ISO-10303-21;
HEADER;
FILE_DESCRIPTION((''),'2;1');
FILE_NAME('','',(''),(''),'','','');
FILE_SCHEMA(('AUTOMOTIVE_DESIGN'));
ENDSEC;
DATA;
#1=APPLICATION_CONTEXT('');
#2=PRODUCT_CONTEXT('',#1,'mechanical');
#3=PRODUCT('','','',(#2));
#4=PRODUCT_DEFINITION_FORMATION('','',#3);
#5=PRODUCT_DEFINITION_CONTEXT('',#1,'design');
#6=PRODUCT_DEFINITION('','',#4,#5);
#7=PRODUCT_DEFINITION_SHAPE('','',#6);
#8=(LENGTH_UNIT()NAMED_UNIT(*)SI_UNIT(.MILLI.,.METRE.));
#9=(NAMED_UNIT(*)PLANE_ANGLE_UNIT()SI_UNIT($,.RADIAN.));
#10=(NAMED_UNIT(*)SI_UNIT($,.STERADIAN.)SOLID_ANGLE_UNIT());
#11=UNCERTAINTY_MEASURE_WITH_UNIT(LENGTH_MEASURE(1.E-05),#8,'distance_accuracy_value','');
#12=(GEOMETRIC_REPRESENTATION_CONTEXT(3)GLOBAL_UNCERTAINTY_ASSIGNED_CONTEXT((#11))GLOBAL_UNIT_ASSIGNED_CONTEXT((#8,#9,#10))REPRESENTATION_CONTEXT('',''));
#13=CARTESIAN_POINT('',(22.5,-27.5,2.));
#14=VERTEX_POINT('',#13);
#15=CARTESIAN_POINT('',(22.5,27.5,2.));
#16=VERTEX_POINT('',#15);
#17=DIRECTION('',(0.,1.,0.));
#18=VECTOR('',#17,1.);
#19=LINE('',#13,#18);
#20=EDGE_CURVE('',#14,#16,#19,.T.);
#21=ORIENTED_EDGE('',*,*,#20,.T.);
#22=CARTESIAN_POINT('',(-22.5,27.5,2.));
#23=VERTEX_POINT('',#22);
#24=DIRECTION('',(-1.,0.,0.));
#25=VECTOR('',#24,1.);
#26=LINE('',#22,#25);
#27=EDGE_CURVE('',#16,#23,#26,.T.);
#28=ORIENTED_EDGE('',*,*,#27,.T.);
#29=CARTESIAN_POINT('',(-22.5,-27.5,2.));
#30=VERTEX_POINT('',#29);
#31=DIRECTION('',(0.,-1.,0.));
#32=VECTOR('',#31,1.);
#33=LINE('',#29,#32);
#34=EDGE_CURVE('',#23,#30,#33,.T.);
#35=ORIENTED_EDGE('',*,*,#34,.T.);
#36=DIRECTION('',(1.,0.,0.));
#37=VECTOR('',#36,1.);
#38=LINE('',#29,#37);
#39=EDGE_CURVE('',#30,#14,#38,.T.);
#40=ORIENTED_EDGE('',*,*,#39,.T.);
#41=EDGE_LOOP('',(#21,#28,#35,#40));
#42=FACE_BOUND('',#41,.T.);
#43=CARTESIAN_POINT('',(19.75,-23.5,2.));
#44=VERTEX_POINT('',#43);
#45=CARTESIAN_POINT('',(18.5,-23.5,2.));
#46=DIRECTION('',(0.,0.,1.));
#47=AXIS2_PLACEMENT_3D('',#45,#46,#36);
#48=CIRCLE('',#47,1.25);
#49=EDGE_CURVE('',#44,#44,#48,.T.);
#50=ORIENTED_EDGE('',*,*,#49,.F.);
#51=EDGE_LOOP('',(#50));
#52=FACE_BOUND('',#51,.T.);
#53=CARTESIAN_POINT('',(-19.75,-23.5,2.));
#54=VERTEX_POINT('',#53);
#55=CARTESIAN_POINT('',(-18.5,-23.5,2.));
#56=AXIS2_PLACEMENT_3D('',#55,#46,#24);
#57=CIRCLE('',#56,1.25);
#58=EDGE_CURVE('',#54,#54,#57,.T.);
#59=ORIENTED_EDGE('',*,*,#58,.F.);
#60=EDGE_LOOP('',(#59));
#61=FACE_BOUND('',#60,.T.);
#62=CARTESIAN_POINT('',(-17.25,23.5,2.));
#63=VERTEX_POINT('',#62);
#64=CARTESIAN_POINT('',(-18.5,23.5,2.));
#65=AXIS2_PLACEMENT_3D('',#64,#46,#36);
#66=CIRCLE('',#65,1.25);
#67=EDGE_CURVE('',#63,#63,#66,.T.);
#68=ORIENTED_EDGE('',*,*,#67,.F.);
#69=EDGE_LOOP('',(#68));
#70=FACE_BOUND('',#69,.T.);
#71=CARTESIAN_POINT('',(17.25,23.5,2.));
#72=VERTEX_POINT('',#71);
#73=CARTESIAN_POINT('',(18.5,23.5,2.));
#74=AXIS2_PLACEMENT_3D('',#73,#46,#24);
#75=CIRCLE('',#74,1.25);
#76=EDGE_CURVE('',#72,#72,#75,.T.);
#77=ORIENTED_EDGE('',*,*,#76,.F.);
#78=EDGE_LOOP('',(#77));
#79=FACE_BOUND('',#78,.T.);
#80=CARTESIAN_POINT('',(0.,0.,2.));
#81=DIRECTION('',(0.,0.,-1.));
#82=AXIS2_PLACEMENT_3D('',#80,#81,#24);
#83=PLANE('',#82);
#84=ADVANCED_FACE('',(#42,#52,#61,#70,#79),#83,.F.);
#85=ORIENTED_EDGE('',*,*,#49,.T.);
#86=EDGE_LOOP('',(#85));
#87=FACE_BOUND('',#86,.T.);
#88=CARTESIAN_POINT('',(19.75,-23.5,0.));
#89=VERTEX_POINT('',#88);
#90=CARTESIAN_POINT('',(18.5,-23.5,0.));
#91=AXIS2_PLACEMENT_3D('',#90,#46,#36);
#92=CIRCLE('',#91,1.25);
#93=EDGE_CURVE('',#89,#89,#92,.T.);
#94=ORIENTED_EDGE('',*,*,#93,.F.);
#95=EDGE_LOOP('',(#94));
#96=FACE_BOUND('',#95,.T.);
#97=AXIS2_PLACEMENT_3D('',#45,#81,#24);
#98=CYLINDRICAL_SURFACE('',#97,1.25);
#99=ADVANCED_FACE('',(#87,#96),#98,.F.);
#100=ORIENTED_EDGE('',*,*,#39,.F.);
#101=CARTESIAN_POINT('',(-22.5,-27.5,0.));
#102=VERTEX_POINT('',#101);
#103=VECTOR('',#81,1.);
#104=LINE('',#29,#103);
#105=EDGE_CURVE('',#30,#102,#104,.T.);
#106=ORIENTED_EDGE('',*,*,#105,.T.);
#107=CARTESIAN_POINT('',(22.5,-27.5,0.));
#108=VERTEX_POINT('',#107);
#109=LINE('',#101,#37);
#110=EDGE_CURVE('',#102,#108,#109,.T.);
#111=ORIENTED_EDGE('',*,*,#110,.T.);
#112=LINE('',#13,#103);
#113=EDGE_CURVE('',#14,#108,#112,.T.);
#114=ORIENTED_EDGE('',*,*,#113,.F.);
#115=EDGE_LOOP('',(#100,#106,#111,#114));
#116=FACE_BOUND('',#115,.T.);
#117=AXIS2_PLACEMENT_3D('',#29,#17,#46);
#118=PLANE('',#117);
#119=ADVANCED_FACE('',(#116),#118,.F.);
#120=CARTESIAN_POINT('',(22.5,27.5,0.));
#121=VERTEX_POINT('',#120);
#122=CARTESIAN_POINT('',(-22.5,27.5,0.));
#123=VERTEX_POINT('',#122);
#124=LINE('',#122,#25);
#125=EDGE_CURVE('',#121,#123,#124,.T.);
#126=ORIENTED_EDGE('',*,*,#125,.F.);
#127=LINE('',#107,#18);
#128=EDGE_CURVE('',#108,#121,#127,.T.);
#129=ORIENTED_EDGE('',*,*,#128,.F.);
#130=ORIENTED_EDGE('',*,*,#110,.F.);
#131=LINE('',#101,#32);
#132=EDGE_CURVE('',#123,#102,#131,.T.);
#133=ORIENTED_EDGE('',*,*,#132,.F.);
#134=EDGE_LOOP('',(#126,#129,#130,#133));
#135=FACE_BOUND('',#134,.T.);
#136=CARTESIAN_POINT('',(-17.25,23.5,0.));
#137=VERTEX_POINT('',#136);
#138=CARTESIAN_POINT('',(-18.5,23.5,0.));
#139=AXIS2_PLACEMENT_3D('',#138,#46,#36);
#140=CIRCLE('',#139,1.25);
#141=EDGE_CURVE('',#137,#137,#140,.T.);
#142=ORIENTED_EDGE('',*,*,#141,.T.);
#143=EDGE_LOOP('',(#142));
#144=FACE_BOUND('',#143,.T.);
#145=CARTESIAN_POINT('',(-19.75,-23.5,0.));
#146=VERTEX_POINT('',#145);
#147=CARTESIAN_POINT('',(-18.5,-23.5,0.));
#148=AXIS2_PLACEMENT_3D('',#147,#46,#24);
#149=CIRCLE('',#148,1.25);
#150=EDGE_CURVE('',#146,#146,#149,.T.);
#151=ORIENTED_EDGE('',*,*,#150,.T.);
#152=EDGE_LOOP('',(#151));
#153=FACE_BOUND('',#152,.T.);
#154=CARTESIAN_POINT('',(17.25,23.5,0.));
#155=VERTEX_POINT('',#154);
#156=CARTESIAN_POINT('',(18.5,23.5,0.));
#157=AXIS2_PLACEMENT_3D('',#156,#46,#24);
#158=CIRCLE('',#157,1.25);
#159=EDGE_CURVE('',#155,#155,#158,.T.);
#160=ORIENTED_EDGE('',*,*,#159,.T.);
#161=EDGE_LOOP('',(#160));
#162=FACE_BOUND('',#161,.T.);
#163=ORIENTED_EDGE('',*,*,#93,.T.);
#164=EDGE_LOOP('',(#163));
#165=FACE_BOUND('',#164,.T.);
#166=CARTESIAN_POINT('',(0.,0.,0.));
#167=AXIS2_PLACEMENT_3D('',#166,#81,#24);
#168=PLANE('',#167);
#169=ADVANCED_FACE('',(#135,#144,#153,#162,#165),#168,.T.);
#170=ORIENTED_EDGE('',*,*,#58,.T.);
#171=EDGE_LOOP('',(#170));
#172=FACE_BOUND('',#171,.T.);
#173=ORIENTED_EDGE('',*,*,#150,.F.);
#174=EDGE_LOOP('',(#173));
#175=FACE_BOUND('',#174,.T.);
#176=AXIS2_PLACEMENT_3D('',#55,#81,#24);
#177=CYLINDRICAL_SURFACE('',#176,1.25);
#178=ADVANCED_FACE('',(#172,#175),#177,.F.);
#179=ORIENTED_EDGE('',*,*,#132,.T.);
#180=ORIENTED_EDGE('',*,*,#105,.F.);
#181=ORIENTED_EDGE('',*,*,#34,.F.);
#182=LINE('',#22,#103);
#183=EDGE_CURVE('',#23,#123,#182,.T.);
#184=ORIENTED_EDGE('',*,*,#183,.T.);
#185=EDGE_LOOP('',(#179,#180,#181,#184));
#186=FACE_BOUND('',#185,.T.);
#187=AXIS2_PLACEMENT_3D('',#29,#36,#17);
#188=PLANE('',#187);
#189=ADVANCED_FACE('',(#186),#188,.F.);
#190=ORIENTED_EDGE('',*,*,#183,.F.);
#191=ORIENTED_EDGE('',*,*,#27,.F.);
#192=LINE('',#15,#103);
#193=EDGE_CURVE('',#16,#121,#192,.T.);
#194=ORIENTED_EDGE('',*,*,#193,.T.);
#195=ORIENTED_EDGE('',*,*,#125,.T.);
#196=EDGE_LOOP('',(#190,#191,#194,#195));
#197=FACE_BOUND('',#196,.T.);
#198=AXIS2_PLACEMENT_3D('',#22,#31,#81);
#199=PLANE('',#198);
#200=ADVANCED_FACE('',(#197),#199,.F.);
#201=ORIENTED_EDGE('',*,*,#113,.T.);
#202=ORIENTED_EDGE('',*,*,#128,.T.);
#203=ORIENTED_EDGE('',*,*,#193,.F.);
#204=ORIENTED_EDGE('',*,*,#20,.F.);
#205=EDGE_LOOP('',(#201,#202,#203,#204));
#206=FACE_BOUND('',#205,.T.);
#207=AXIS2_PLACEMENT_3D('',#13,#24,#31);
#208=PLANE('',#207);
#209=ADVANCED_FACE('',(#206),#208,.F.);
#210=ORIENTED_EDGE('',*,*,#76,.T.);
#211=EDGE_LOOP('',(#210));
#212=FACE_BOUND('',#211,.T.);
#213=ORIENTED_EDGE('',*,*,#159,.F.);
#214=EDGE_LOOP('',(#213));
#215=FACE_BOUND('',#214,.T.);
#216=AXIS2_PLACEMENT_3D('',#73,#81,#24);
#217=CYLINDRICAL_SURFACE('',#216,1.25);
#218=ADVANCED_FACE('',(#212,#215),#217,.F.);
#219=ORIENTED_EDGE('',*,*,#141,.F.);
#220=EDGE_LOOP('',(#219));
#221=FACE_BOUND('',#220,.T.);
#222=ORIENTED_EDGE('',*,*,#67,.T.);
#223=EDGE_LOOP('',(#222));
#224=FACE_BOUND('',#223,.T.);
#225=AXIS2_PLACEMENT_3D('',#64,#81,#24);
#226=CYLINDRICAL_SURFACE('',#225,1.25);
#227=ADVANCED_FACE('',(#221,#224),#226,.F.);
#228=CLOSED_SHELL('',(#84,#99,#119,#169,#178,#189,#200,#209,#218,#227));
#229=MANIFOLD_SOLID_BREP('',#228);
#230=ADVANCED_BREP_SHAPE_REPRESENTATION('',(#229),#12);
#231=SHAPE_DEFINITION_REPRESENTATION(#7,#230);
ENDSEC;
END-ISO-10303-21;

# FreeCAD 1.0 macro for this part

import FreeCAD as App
import Part
import Sketcher

V = App.Vector


def add_polygon(sketch, points):
    """Adds a closed chain of lines whose ends are joined by coincident constraints."""
    first, n = sketch.GeometryCount, len(points)
    for a, b in zip(points, points[1:] + points[:1]):
        sketch.addGeometry(Part.LineSegment(App.Vector(*a, 0), App.Vector(*b, 0)), False)
    for i in range(n):
        sketch.addConstraint(Sketcher.Constraint("Coincident", first + i, 2, first + (i + 1) % n, 1))

doc = App.newDocument("Part")
params = doc.addObject("Spreadsheet::Sheet", "Params")
for row, (alias, value) in enumerate([
    ("sketch1_diameter", "2.5 mm"),
    ("sketch1_width", "45 mm"),
    ("sketch1_height", "55 mm"),
    ("pad1_length", "2 mm"),
], start=1):
    params.set(f"A{row}", alias)
    params.set(f"B{row}", "=" + value)
    params.setAlias(f"B{row}", alias)

body = doc.addObject("PartDesign::Body", "Body")

# Sketch on XY plane
sketch1 = body.newObject("Sketcher::SketchObject", "Sketch")
sketch1.AttachmentSupport = (doc.getObject("XY_Plane"), [""])
sketch1.MapMode = "FlatFace"
add_polygon(sketch1, [(-22.5, 27.5), (-22.5, -27.5), (22.5, -27.5), (22.5, 27.5)])  # lines 0-3
sketch1.addGeometry(Part.Circle(V(-18.5, -23.5, 0), V(0, 0, 1), 1.2), False)  # 4
sketch1.addGeometry(Part.Circle(V(18.5, -23.5, 0), V(0, 0, 1), 1.2), False)  # 5
sketch1.addGeometry(Part.Circle(V(-18.5, 23.5, 0), V(0, 0, 1), 1.2), False)  # 6
sketch1.addGeometry(Part.Circle(V(18.5, 23.5, 0), V(0, 0, 1), 1.2), False)  # 7
sketch1.addConstraint([
    Sketcher.Constraint("Vertical", 0),
    Sketcher.Constraint("Horizontal", 1),
    Sketcher.Constraint("Vertical", 2),
    Sketcher.Constraint("Horizontal", 3),
    Sketcher.Constraint("Equal", 4, 5),
    Sketcher.Constraint("Equal", 5, 6),
    Sketcher.Constraint("Equal", 6, 7),
    Sketcher.Constraint("Symmetric", 5, 3, 6, 3, -1, 1),
    Sketcher.Constraint("Symmetric", 4, 3, 7, 3, -1, 1),
    Sketcher.Constraint("Symmetric", 0, 2, 2, 2, -1, 1),
    Sketcher.Constraint("Symmetric", 4, 3, 5, 3, -2),
    Sketcher.Constraint("Diameter", 4, 2.5),
    Sketcher.Constraint("DistanceX", 1, 1, 1, 2, 45.0),
    Sketcher.Constraint("DistanceY", 0, 2, 0, 1, 55.0),
    Sketcher.Constraint("DistanceX", 4, 3, 5, 3, 37.0),
    Sketcher.Constraint("DistanceY", 4, 3, 6, 3, 47.0),
])
sketch1.setExpression("Constraints[15]", "Params.sketch1_diameter")
sketch1.setExpression("Constraints[16]", "Params.sketch1_width")
sketch1.setExpression("Constraints[17]", "Params.sketch1_height")
pad1 = body.newObject("PartDesign::Pad", "Pad")
pad1.Profile = sketch1
pad1.setExpression("Length", "Params.pad1_length")

doc.recompute()
